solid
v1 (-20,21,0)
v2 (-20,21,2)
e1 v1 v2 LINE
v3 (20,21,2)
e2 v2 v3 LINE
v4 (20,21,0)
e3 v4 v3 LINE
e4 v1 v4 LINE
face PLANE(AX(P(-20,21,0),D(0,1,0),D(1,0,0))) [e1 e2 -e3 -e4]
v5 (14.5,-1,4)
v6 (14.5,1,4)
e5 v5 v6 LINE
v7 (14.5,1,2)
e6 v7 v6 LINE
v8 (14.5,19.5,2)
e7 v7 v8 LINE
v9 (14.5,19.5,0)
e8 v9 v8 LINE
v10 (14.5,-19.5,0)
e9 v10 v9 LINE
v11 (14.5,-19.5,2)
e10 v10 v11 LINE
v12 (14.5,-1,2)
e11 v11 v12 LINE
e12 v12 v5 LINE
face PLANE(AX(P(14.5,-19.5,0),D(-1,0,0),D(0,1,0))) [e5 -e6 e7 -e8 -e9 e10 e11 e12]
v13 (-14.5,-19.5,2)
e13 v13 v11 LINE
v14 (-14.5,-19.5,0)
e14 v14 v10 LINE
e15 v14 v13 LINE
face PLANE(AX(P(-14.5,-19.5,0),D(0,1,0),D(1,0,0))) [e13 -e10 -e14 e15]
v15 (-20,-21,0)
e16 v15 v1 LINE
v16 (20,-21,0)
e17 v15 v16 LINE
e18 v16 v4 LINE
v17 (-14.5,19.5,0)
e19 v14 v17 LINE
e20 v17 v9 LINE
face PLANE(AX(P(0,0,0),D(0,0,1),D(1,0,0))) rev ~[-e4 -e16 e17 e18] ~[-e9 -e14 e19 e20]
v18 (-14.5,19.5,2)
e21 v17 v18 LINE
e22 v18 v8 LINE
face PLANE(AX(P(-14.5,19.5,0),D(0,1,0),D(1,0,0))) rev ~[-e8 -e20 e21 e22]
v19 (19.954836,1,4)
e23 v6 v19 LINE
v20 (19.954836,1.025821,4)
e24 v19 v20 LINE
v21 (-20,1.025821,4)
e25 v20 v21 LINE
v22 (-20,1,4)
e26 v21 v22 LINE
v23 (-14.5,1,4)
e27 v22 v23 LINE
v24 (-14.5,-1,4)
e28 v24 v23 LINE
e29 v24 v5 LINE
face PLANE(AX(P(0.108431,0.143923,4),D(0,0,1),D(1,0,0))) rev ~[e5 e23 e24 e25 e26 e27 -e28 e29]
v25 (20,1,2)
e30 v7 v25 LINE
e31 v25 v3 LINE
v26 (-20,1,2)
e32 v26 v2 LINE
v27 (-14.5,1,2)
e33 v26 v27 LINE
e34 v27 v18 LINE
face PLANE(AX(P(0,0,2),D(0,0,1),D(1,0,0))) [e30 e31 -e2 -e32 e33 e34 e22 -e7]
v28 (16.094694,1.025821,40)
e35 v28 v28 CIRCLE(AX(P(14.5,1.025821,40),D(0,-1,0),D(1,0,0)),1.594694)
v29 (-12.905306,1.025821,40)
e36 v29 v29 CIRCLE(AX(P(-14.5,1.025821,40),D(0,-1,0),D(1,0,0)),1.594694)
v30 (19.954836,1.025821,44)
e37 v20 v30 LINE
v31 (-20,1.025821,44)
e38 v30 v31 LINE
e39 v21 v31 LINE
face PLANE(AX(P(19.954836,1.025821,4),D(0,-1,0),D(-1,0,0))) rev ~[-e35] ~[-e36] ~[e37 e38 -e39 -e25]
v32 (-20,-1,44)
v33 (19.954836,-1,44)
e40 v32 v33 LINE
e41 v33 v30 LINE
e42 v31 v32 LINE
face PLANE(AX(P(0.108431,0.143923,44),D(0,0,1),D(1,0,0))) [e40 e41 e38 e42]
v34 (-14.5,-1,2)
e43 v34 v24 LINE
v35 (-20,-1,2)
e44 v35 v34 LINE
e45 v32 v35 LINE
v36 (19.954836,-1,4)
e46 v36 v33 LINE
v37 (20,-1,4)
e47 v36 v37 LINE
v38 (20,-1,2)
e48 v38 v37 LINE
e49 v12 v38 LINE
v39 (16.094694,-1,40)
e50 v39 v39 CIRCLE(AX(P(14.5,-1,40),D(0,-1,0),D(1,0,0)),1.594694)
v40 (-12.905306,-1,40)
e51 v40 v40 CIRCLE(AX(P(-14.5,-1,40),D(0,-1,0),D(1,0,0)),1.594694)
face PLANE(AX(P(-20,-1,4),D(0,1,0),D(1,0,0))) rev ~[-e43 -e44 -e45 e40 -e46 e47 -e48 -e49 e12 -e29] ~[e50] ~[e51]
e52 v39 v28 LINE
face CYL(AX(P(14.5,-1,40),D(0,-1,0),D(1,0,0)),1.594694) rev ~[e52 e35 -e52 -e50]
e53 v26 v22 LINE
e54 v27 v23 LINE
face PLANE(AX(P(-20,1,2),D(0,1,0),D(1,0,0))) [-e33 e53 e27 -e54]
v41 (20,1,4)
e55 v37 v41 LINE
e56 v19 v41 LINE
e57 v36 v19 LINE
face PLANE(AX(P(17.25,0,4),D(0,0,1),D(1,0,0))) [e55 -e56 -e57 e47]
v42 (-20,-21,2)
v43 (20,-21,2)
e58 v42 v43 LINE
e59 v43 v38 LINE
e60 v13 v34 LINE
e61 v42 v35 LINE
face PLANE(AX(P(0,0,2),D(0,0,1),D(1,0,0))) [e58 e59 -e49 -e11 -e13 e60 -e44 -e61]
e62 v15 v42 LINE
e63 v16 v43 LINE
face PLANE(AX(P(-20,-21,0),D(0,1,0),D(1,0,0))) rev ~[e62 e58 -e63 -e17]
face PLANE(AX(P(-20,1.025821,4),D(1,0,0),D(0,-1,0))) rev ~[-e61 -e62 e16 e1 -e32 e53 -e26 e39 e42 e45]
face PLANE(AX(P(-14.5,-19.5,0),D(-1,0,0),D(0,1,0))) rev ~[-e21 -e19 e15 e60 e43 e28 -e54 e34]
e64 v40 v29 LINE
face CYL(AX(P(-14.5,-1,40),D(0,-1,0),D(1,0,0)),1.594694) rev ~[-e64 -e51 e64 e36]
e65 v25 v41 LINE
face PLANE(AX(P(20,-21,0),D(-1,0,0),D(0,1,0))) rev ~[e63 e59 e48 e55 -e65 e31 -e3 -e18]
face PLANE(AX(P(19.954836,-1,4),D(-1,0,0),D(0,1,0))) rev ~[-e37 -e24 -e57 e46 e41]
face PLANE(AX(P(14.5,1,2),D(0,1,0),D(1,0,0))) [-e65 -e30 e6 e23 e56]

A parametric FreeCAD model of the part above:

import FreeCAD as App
import Part
import Sketcher


def add_polygon(sketch, points):
    """Adds a closed chain of lines whose ends are joined by coincident constraints."""
    first, n = sketch.GeometryCount, len(points)
    for a, b in zip(points, points[1:] + points[:1]):
        sketch.addGeometry(Part.LineSegment(App.Vector(*a, 0), App.Vector(*b, 0)), False)
    for i in range(n):
        sketch.addConstraint(Sketcher.Constraint("Coincident", first + i, 2, first + (i + 1) % n, 1))

doc = App.newDocument("Part")
body = doc.addObject("PartDesign::Body", "Body")

# Sketch on XY plane
sketch1 = body.newObject("Sketcher::SketchObject", "Sketch")
sketch1.AttachmentSupport = (doc.getObject("XY_Plane"), [""])
sketch1.MapMode = "FlatFace"
add_polygon(sketch1, [(-20, 21), (-20, -21), (20, -21), (20, 21)])  # lines 0-3
add_polygon(sketch1, [(14, -20), (-14, -20), (-14, 20), (14, 20)])  # lines 4-7
sketch1.addConstraint([
    Sketcher.Constraint("Vertical", 0),
    Sketcher.Constraint("Horizontal", 1),
    Sketcher.Constraint("Vertical", 2),
    Sketcher.Constraint("Horizontal", 3),
    Sketcher.Constraint("Horizontal", 4),
    Sketcher.Constraint("Vertical", 5),
    Sketcher.Constraint("Horizontal", 6),
    Sketcher.Constraint("Vertical", 7),
    Sketcher.Constraint("Symmetric", 0, 2, 2, 2, -1, 1),
    Sketcher.Constraint("Symmetric", 4, 2, 6, 2, -1, 1),
    Sketcher.Constraint("DistanceX", 1, 1, 1, 2, 40.0),
    Sketcher.Constraint("DistanceX", 4, 2, 4, 1, 29.0),
    Sketcher.Constraint("DistanceY", 0, 2, 0, 1, 42.0),
    Sketcher.Constraint("DistanceY", 5, 1, 5, 2, 39.0),
])
pad1 = body.newObject("PartDesign::Pad", "Pad")
pad1.Profile = sketch1
pad1.Length = 2

# Sketch on XY plane
sketch2 = body.newObject("Sketcher::SketchObject", "Sketch001")
sketch2.AttachmentSupport = (doc.getObject("XY_Plane"), [""])
sketch2.MapMode = "FlatFace"
sketch2.AttachmentOffset = App.Placement(App.Vector(0, 0, 2), App.Rotation())
add_polygon(sketch2, [(-20, 1), (-20, -1), (-14.5, -1), (-14.5, 1)])  # lines 0-3
add_polygon(sketch2, [(14.5, 1), (14.5, -1), (20, -1), (20, 1)])  # lines 4-7
sketch2.addConstraint([
    Sketcher.Constraint("Vertical", 0),
    Sketcher.Constraint("Horizontal", 1),
    Sketcher.Constraint("Vertical", 2),
    Sketcher.Constraint("Horizontal", 3),
    Sketcher.Constraint("Vertical", 4),
    Sketcher.Constraint("Horizontal", 5),
    Sketcher.Constraint("Vertical", 6),
    Sketcher.Constraint("Horizontal", 7),
    Sketcher.Constraint("Symmetric", 2, 2, 4, 2, -1, 1),
    Sketcher.Constraint("Symmetric", 0, 2, 6, 2, -1, 1),
    Sketcher.Constraint("Horizontal", 1, 2, 4, 2),
    Sketcher.Constraint("DistanceY", 0, 2, 0, 1, 2.0),
    Sketcher.Constraint("DistanceX", 1, 1, 1, 2, 5.5),
    Sketcher.Constraint("DistanceX", 0, 2, -1, 1, 20.0),
])
pad2 = body.newObject("PartDesign::Pad", "Pad001")
pad2.Profile = sketch2
pad2.Length = 2

# Sketch on XY plane
sketch3 = body.newObject("Sketcher::SketchObject", "Sketch002")
sketch3.AttachmentSupport = (doc.getObject("XY_Plane"), [""])
sketch3.MapMode = "FlatFace"
sketch3.AttachmentOffset = App.Placement(App.Vector(0, 0, 4), App.Rotation())
add_polygon(sketch3, [(20, -1), (20, 1), (-20, 1), (-20, -1)])  # lines 0-3
sketch3.addConstraint([
    Sketcher.Constraint("Vertical", 0),
    Sketcher.Constraint("Horizontal", 1),
    Sketcher.Constraint("Vertical", 2),
    Sketcher.Constraint("Horizontal", 3),
    Sketcher.Constraint("DistanceX", 1, 2, -1, 1, 20.0),
    Sketcher.Constraint("DistanceY", 2, 2, -1, 1, 1.0),
    Sketcher.Constraint("DistanceY", 0, 1, 0, 2, 2.025821),
    Sketcher.Constraint("DistanceX", 1, 2, 1, 1, 39.954836),
])
pad3 = body.newObject("PartDesign::Pad", "Pad002")
pad3.Profile = sketch3
pad3.Length = 40

# Sketch on XZ plane
sketch4 = body.newObject("Sketcher::SketchObject", "Sketch003")
sketch4.AttachmentSupport = (doc.getObject("XZ_Plane"), [""])
sketch4.MapMode = "FlatFace"
sketch4.AttachmentOffset = App.Placement(App.Vector(0, 0, 1), App.Rotation())
sketch4.addGeometry([
    Part.Circle(App.Vector(-14.5, 40, 0), App.Vector(0, 0, 1), 1.6),
    Part.Circle(App.Vector(14.5, 40, 0), App.Vector(0, 0, 1), 1.6),
], False)
sketch4.addConstraint([
    Sketcher.Constraint("Equal", 0, 1),
    Sketcher.Constraint("Symmetric", 0, 3, 1, 3, -2),
    Sketcher.Constraint("DistanceY", -1, 1, 0, 3, 40.0),
    Sketcher.Constraint("DistanceX", 0, 3, 1, 3, 29.0),
    Sketcher.Constraint("Diameter", 0, 3.189388),
])
pocket1 = body.newObject("PartDesign::Pocket", "Pocket")
pocket1.Profile = sketch4
pocket1.Length = 3

doc.recompute()
